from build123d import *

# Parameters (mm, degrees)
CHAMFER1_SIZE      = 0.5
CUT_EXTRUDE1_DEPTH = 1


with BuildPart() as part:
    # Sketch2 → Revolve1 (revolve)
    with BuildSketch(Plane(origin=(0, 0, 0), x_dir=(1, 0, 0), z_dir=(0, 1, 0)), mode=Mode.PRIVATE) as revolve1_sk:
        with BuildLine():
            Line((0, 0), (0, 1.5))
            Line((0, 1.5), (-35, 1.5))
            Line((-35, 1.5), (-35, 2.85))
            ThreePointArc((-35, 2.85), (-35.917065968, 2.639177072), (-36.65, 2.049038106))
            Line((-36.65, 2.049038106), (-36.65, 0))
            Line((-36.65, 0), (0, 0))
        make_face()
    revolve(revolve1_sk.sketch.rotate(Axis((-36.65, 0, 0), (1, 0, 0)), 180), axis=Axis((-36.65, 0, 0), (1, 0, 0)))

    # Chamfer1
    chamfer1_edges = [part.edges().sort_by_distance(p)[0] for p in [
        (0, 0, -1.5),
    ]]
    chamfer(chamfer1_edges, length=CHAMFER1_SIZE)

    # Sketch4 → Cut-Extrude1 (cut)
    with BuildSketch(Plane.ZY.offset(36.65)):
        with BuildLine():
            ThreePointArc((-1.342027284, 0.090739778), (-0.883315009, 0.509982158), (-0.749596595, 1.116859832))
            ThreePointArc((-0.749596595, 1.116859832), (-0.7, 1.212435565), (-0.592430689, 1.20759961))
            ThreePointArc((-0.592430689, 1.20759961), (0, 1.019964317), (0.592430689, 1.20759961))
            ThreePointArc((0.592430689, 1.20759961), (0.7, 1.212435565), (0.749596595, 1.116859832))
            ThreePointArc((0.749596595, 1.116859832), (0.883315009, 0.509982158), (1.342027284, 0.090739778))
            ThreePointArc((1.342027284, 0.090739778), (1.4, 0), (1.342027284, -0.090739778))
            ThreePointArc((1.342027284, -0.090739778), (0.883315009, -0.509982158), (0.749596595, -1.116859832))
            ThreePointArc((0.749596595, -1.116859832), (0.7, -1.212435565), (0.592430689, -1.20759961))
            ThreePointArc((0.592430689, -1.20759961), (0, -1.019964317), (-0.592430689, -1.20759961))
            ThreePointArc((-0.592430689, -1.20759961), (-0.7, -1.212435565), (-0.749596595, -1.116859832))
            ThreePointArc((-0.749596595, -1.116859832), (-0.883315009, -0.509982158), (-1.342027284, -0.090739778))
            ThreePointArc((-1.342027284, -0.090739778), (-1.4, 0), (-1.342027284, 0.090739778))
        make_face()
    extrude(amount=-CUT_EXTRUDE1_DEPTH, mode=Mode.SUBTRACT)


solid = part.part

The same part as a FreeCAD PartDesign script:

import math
import FreeCAD as App
import Part
import Sketcher
from FreeCAD import Vector


def edges_at(feature, points):
    """Names of the edges that pass closest to the given points."""
    edges = feature.Shape.Edges
    near = lambda p: min(range(len(edges)), key=lambda i: edges[i].distToShape(Part.Vertex(*p))[0])
    return sorted({f"Edge{near(p) + 1}" for p in points})

doc = App.newDocument("Part")
body = doc.addObject("PartDesign::Body", "Body")

sketch1 = body.newObject("Sketcher::SketchObject", "Sketch")
sketch1.AttachmentSupport = (doc.getObject("XZ_Plane"), [""])
sketch1.MapMode = "FlatFace"
sketch1.addGeometry([
    Part.LineSegment(Vector(0, 0, 0), Vector(0, -1.5, 0)),
    Part.LineSegment(Vector(0, -1.5, 0), Vector(-35, -1.5, 0)),
    Part.LineSegment(Vector(-35, -1.5, 0), Vector(-35, -2.9, 0)),
    Part.ArcOfCircle(Part.Circle(Vector(-35, -0.7, 0), Vector(0, 0, 1), 2.1), math.radians(-142), math.radians(-90)),
    Part.LineSegment(Vector(-36.6, -2, 0), Vector(-36.6, 0, 0)),
    Part.LineSegment(Vector(-36.6, 0, 0), Vector(0, 0, 0)),
], False)
sketch1.addConstraint([
    Sketcher.Constraint("Coincident", 0, 2, 1, 1),
    Sketcher.Constraint("Coincident", 1, 2, 2, 1),
    Sketcher.Constraint("Coincident", 2, 2, 3, 2),
    Sketcher.Constraint("Coincident", 3, 1, 4, 1),
    Sketcher.Constraint("Coincident", 4, 2, 5, 1),
    Sketcher.Constraint("Coincident", 5, 2, 0, 1),
    Sketcher.Constraint("Vertical", 0),
    Sketcher.Constraint("Horizontal", 1),
    Sketcher.Constraint("Vertical", 2),
    Sketcher.Constraint("Vertical", 4),
    Sketcher.Constraint("Horizontal", 5),
    Sketcher.Constraint("Coincident", 5, 2, -1, 1),
    Sketcher.Constraint("Vertical", 3, 3, 1, 2),
    Sketcher.Constraint("Radius", 3, 2.1),
    Sketcher.Constraint("DistanceX", 1, 2, 1, 1, 35.0),
    Sketcher.Constraint("DistanceY", 0, 2, 0, 1, 1.5),
    Sketcher.Constraint("DistanceX", 5, 1, 5, 2, 36.65),
    Sketcher.Constraint("DistanceY", 2, 2, 2, 1, 1.35),
])
revolution = body.newObject("PartDesign::Revolution", "Revolution")
revolution.Profile = sketch1
revolution.ReferenceAxis = (sketch1, ["H_Axis"])
revolution.Angle = 360
doc.recompute()

chamfer = body.newObject("PartDesign::Chamfer", "Chamfer")
chamfer.Base = (revolution, edges_at(revolution, [(0, 0, -1.5)]))
chamfer.Size = 0.5

sketch2 = body.newObject("Sketcher::SketchObject", "Sketch001")
sketch2.AttachmentSupport = (doc.getObject("YZ_Plane"), [""])
sketch2.MapMode = "FlatFace"
sketch2.AttachmentOffset = App.Placement(Vector(0, 0, -36.65), App.Rotation())
sketch2.addGeometry([
    Part.ArcOfCircle(Part.Circle(Vector(1.02, -1.77, 0), Vector(0, 0, 1), 1.03), math.radians(85), math.radians(155)),
    Part.ArcOfCircle(Part.Circle(Vector(0, -1.3, 0), Vector(0, 0, 1), 0.1), math.radians(-155), math.radians(-25)),
    Part.ArcOfCircle(Part.Circle(Vector(-1.02, -1.77, 0), Vector(0, 0, 1), 1.03), math.radians(25), math.radians(95)),
    Part.ArcOfCircle(Part.Circle(Vector(-1.13, -0.65, 0), Vector(0, 0, 1), 0.1), math.radians(145), math.radians(275)),
    Part.ArcOfCircle(Part.Circle(Vector(-2.05, 0, 0), Vector(0, 0, 1), 1.03), math.radians(-35), math.radians(35)),
    Part.ArcOfCircle(Part.Circle(Vector(-1.13, 0.65, 0), Vector(0, 0, 1), 0.1), math.radians(85), math.radians(215)),
    Part.ArcOfCircle(Part.Circle(Vector(-1.02, 1.77, 0), Vector(0, 0, 1), 1.03), math.radians(-95), math.radians(-25)),
    Part.ArcOfCircle(Part.Circle(Vector(0, 1.3, 0), Vector(0, 0, 1), 0.1), math.radians(25), math.radians(155)),
    Part.ArcOfCircle(Part.Circle(Vector(1.02, 1.77, 0), Vector(0, 0, 1), 1.03), math.radians(-155), math.radians(-85)),
    Part.ArcOfCircle(Part.Circle(Vector(1.13, 0.65, 0), Vector(0, 0, 1), 0.1), math.radians(-35), math.radians(95)),
    Part.ArcOfCircle(Part.Circle(Vector(2.05, 0, 0), Vector(0, 0, 1), 1.03), math.radians(145), math.radians(215)),
    Part.ArcOfCircle(Part.Circle(Vector(1.13, -0.65, 0), Vector(0, 0, 1), 0.1), math.radians(-95), math.radians(35)),
], False)
sketch2.addConstraint([
    Sketcher.Constraint("Tangent", 0, 2, 1, 2),
    Sketcher.Constraint("Tangent", 1, 1, 2, 1),
    Sketcher.Constraint("Tangent", 2, 2, 3, 2),
    Sketcher.Constraint("Tangent", 3, 1, 4, 1),
    Sketcher.Constraint("Tangent", 4, 2, 5, 2),
    Sketcher.Constraint("Tangent", 5, 1, 6, 1),
    Sketcher.Constraint("Tangent", 6, 2, 7, 2),
    Sketcher.Constraint("Tangent", 7, 1, 8, 1),
    Sketcher.Constraint("Tangent", 8, 2, 9, 2),
    Sketcher.Constraint("Tangent", 9, 1, 10, 1),
    Sketcher.Constraint("Tangent", 10, 2, 11, 2),
    Sketcher.Constraint("Tangent", 11, 1, 0, 1),
    Sketcher.Constraint("Equal", 0, 2),
    Sketcher.Constraint("Equal", 1, 3),
    Sketcher.Constraint("Equal", 2, 4),
    Sketcher.Constraint("Equal", 3, 5),
    Sketcher.Constraint("Equal", 4, 6),
    Sketcher.Constraint("Equal", 5, 7),
    Sketcher.Constraint("Equal", 6, 8),
    Sketcher.Constraint("Equal", 7, 9),
    Sketcher.Constraint("Equal", 8, 10),
    Sketcher.Constraint("Equal", 9, 11),
    Sketcher.Constraint("Symmetric", 0, 3, 6, 3, -1, 1),
    Sketcher.Constraint("Symmetric", 2, 3, 8, 3, -1, 1),
    Sketcher.Constraint("Symmetric", 4, 3, 10, 3, -1, 1),
    Sketcher.Constraint("Symmetric", 0, 3, 2, 3, -2),
    Sketcher.Constraint("PointOnObject", 4, 3, -1),
    Sketcher.Constraint("Radius", 1, 0.1),
    Sketcher.Constraint("DistanceY", 1, 3, -1, 1, 1.3),
    Sketcher.Constraint("DistanceY", 3, 3, 5, 3, 1.3),
    Sketcher.Constraint("Radius", 0, 1.029074),
    Sketcher.Constraint("DistanceX", 3, 1, -1, 1, 1.2076),
])
pocket1 = body.newObject("PartDesign::Pocket", "Pocket")
pocket1.Profile = sketch2
pocket1.Length = 1
pocket1.Reversed = True

doc.recompute()
